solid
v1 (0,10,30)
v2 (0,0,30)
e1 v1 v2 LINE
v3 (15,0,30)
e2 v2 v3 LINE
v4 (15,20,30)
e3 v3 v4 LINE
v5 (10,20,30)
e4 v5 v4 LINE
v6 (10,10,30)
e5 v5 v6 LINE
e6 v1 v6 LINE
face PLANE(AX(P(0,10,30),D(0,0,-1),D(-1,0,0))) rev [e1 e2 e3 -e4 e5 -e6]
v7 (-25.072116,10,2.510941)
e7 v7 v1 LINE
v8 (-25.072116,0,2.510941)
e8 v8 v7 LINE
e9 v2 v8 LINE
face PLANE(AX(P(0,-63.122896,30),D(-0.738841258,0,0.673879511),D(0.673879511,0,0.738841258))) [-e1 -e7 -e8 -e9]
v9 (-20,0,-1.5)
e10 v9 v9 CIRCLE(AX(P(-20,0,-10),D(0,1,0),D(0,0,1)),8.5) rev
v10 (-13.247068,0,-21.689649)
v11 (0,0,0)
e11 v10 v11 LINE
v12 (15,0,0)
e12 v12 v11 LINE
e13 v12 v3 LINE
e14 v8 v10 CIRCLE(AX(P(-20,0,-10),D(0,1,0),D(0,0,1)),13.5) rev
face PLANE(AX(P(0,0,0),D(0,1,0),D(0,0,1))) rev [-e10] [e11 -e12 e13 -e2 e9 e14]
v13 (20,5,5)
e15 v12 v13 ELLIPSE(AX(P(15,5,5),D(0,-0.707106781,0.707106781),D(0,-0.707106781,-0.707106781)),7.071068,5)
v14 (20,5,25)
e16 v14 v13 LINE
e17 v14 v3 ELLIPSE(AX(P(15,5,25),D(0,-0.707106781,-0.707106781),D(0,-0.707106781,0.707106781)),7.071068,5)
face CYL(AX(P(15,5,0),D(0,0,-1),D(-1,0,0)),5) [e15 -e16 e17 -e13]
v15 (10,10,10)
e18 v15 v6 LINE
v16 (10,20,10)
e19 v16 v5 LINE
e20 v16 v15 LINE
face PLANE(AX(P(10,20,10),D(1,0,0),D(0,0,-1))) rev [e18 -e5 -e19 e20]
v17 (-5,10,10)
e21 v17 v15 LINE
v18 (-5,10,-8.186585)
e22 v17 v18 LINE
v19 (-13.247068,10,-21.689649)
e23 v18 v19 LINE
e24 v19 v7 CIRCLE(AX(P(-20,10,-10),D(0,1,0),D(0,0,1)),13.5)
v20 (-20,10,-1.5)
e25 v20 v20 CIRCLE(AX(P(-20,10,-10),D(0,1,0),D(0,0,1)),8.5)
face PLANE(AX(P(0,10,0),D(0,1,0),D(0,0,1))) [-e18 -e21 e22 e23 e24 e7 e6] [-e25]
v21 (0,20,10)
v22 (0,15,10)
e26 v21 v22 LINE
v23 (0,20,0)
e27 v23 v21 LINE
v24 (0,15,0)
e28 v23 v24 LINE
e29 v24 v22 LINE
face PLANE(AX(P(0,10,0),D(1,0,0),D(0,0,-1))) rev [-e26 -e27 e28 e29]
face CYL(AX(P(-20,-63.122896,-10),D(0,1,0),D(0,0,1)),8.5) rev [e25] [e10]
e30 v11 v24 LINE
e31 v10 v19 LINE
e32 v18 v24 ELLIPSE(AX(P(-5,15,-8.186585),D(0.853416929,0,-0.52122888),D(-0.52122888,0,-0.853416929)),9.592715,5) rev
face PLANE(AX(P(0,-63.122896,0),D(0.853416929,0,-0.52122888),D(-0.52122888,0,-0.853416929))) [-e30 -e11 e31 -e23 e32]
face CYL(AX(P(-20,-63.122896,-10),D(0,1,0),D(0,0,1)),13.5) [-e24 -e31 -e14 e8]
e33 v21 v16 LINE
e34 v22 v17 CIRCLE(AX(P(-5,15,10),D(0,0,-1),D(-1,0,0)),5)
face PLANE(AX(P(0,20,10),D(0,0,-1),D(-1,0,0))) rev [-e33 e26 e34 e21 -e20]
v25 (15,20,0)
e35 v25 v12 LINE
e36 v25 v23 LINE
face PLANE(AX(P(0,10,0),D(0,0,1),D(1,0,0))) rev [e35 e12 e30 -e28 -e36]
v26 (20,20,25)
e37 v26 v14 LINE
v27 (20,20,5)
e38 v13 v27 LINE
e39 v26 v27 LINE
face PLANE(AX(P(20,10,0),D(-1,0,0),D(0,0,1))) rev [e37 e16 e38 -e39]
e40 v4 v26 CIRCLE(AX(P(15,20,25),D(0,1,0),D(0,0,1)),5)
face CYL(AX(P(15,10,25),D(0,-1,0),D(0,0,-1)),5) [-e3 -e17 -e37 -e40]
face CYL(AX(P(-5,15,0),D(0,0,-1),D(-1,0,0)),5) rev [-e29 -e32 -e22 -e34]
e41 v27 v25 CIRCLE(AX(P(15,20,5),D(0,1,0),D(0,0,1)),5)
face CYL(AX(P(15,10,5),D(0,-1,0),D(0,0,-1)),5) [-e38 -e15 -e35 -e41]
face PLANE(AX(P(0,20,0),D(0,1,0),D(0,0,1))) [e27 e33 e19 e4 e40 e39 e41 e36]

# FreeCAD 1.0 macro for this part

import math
import FreeCAD as App
import Part
import Sketcher
Q = App.Units.Quantity


def edges_at(feature, points):
    """Names of the edges that pass closest to the given points."""
    edges = feature.Shape.Edges
    near = lambda p: min(range(len(edges)), key=lambda i: edges[i].distToShape(Part.Vertex(*p))[0])
    return sorted({f"Edge{near(p) + 1}" for p in points})

doc = App.newDocument("Part")
body = doc.addObject("PartDesign::Body", "Body")

# Sketch on XZ plane
sketch1 = doc.addObject("Sketcher::SketchObject", "Sketch")
body.addObject(sketch1)
sketch1.AttachmentSupport = (doc.XZ_Plane, [""])
sketch1.MapMode = "FlatFace"
sketch1.addGeometry([
    Part.LineSegment(App.Vector(0, 0, 0), App.Vector(0, 30, 0)),
    Part.LineSegment(App.Vector(0, 30, 0), App.Vector(20, 30, 0)),
    Part.LineSegment(App.Vector(20, 30, 0), App.Vector(20, 0, 0)),
    Part.LineSegment(App.Vector(20, 0, 0), App.Vector(0, 0, 0)),
], False)
sketch1.addConstraint([
    Sketcher.Constraint("Coincident", 0, 2, 1, 1),
    Sketcher.Constraint("Coincident", 1, 2, 2, 1),
    Sketcher.Constraint("Coincident", 2, 2, 3, 1),
    Sketcher.Constraint("Coincident", 3, 2, 0, 1),
    Sketcher.Constraint("Vertical", 0),
    Sketcher.Constraint("Horizontal", 1),
    Sketcher.Constraint("Vertical", 2),
    Sketcher.Constraint("Horizontal", 3),
    Sketcher.Constraint("Coincident", 3, 2, -1, 1),
    Sketcher.Constraint("DistanceX", 1, 1, 1, 2, Q("20 mm")),
    Sketcher.Constraint("DistanceY", 0, 1, 0, 2, Q("30 mm")),
])
pad1 = doc.addObject("PartDesign::Pad", "Pad")
body.addObject(pad1)
pad1.Profile = sketch1
pad1.Length = 10
pad1.Reversed = True

# Sketch on XZ plane
sketch2 = doc.addObject("Sketcher::SketchObject", "Sketch001")
body.addObject(sketch2)
sketch2.AttachmentSupport = (doc.XZ_Plane, [""])
sketch2.MapMode = "FlatFace"
sketch2.AttachmentOffset = App.Placement(App.Vector(0, 0, -10), App.Rotation())
sketch2.addGeometry([
    Part.LineSegment(App.Vector(0, 0, 0), App.Vector(0, 10, 0)),  # 0
    Part.LineSegment(App.Vector(0, 10, 0), App.Vector(10, 10, 0)),  # 1
    Part.LineSegment(App.Vector(10, 10, 0), App.Vector(10, 30, 0)),  # 2
    Part.LineSegment(App.Vector(10, 30, 0), App.Vector(20, 30, 0)),  # 3
    Part.LineSegment(App.Vector(20, 30, 0), App.Vector(20, 0, 0)),  # 4
    Part.LineSegment(App.Vector(20, 0, 0), App.Vector(0, 0, 0)),  # 5
], False)
sketch2.addConstraint([
    Sketcher.Constraint("Coincident", 0, 2, 1, 1),
    Sketcher.Constraint("Coincident", 1, 2, 2, 1),
    Sketcher.Constraint("Coincident", 2, 2, 3, 1),
    Sketcher.Constraint("Coincident", 3, 2, 4, 1),
    Sketcher.Constraint("Coincident", 4, 2, 5, 1),
    Sketcher.Constraint("Coincident", 5, 2, 0, 1),
    Sketcher.Constraint("Vertical", 0),
    Sketcher.Constraint("Horizontal", 1),
    Sketcher.Constraint("Vertical", 2),
    Sketcher.Constraint("Horizontal", 3),
    Sketcher.Constraint("Vertical", 4),
    Sketcher.Constraint("Horizontal", 5),
    Sketcher.Constraint("Coincident", 5, 2, -1, 1),
    Sketcher.Constraint("Equal", 1, 3),
    Sketcher.Constraint("Equal", 3, 0),
    Sketcher.Constraint("Equal", 5, 2),
    Sketcher.Constraint("DistanceX", 1, 1, 1, 2, Q("10 mm")),
])
pad2 = doc.addObject("PartDesign::Pad", "Pad001")
body.addObject(pad2)
pad2.Profile = sketch2
pad2.Length = 10
pad2.Reversed = True

# Sketch on XZ plane
sketch3 = doc.addObject("Sketcher::SketchObject", "Sketch002")
body.addObject(sketch3)
sketch3.AttachmentSupport = (doc.XZ_Plane, [""])
sketch3.MapMode = "FlatFace"
sketch3.AttachmentOffset = App.Placement(App.Vector(0, 0, -10), App.Rotation())
sketch3.addGeometry([
    Part.LineSegment(App.Vector(0, 0, 0), App.Vector(-13.247068, -21.689649, 0)),  # 0
    Part.ArcOfCircle(Part.Circle(App.Vector(-20, -10, 0), App.Vector(0, 0, 1), 13.5), math.radians(112.068344), math.radians(300.014372)),  # 1
    Part.LineSegment(App.Vector(-25.072116, 2.510941, 0), App.Vector(0, 30, 0)),  # 2
    Part.LineSegment(App.Vector(0, 30, 0), App.Vector(0, 0, 0)),  # 3
    Part.Circle(App.Vector(-20, -10, 0), App.Vector(0, 0, 1), 8.5),  # 4
], False)
sketch3.addConstraint([
    Sketcher.Constraint("Coincident", 0, 2, 1, 2),
    Sketcher.Constraint("Coincident", 1, 1, 2, 1),
    Sketcher.Constraint("Coincident", 2, 2, 3, 1),
    Sketcher.Constraint("Coincident", 3, 2, 0, 1),
    Sketcher.Constraint("Vertical", 3),
    Sketcher.Constraint("Coincident", 3, 2, -1, 1),
    Sketcher.Constraint("Coincident", 4, 3, 1, 3),
    Sketcher.Constraint("Diameter", 4, Q("17 mm")),
    Sketcher.Constraint("Radius", 1, Q("13.5 mm")),
    Sketcher.Constraint("DistanceY", 3, 2, 3, 1, Q("30 mm")),
    Sketcher.Constraint("DistanceX", 1, 3, -1, 1, Q("20 mm")),
    Sketcher.Constraint("DistanceY", 1, 3, -1, 1, Q("10 mm")),
    Sketcher.Constraint("Distance", 0, Q("25.415068 mm")),
    Sketcher.Constraint("DistanceY", -1, 1, 1, 1, Q("2.510941 mm")),
])
pad3 = doc.addObject("PartDesign::Pad", "Pad002")
body.addObject(pad3)
pad3.Profile = sketch3
pad3.Length = 10
doc.recompute()

fillet = doc.addObject("PartDesign::Fillet", "Fillet")
body.addObject(fillet)
fillet.Base = (pad3, edges_at(pad3, [
    (0, 10, 5),
    (20, 0, 15),
    (20, 10, 0),
    (20, 10, 30),
]))
fillet.Radius = 5

doc.recompute()
